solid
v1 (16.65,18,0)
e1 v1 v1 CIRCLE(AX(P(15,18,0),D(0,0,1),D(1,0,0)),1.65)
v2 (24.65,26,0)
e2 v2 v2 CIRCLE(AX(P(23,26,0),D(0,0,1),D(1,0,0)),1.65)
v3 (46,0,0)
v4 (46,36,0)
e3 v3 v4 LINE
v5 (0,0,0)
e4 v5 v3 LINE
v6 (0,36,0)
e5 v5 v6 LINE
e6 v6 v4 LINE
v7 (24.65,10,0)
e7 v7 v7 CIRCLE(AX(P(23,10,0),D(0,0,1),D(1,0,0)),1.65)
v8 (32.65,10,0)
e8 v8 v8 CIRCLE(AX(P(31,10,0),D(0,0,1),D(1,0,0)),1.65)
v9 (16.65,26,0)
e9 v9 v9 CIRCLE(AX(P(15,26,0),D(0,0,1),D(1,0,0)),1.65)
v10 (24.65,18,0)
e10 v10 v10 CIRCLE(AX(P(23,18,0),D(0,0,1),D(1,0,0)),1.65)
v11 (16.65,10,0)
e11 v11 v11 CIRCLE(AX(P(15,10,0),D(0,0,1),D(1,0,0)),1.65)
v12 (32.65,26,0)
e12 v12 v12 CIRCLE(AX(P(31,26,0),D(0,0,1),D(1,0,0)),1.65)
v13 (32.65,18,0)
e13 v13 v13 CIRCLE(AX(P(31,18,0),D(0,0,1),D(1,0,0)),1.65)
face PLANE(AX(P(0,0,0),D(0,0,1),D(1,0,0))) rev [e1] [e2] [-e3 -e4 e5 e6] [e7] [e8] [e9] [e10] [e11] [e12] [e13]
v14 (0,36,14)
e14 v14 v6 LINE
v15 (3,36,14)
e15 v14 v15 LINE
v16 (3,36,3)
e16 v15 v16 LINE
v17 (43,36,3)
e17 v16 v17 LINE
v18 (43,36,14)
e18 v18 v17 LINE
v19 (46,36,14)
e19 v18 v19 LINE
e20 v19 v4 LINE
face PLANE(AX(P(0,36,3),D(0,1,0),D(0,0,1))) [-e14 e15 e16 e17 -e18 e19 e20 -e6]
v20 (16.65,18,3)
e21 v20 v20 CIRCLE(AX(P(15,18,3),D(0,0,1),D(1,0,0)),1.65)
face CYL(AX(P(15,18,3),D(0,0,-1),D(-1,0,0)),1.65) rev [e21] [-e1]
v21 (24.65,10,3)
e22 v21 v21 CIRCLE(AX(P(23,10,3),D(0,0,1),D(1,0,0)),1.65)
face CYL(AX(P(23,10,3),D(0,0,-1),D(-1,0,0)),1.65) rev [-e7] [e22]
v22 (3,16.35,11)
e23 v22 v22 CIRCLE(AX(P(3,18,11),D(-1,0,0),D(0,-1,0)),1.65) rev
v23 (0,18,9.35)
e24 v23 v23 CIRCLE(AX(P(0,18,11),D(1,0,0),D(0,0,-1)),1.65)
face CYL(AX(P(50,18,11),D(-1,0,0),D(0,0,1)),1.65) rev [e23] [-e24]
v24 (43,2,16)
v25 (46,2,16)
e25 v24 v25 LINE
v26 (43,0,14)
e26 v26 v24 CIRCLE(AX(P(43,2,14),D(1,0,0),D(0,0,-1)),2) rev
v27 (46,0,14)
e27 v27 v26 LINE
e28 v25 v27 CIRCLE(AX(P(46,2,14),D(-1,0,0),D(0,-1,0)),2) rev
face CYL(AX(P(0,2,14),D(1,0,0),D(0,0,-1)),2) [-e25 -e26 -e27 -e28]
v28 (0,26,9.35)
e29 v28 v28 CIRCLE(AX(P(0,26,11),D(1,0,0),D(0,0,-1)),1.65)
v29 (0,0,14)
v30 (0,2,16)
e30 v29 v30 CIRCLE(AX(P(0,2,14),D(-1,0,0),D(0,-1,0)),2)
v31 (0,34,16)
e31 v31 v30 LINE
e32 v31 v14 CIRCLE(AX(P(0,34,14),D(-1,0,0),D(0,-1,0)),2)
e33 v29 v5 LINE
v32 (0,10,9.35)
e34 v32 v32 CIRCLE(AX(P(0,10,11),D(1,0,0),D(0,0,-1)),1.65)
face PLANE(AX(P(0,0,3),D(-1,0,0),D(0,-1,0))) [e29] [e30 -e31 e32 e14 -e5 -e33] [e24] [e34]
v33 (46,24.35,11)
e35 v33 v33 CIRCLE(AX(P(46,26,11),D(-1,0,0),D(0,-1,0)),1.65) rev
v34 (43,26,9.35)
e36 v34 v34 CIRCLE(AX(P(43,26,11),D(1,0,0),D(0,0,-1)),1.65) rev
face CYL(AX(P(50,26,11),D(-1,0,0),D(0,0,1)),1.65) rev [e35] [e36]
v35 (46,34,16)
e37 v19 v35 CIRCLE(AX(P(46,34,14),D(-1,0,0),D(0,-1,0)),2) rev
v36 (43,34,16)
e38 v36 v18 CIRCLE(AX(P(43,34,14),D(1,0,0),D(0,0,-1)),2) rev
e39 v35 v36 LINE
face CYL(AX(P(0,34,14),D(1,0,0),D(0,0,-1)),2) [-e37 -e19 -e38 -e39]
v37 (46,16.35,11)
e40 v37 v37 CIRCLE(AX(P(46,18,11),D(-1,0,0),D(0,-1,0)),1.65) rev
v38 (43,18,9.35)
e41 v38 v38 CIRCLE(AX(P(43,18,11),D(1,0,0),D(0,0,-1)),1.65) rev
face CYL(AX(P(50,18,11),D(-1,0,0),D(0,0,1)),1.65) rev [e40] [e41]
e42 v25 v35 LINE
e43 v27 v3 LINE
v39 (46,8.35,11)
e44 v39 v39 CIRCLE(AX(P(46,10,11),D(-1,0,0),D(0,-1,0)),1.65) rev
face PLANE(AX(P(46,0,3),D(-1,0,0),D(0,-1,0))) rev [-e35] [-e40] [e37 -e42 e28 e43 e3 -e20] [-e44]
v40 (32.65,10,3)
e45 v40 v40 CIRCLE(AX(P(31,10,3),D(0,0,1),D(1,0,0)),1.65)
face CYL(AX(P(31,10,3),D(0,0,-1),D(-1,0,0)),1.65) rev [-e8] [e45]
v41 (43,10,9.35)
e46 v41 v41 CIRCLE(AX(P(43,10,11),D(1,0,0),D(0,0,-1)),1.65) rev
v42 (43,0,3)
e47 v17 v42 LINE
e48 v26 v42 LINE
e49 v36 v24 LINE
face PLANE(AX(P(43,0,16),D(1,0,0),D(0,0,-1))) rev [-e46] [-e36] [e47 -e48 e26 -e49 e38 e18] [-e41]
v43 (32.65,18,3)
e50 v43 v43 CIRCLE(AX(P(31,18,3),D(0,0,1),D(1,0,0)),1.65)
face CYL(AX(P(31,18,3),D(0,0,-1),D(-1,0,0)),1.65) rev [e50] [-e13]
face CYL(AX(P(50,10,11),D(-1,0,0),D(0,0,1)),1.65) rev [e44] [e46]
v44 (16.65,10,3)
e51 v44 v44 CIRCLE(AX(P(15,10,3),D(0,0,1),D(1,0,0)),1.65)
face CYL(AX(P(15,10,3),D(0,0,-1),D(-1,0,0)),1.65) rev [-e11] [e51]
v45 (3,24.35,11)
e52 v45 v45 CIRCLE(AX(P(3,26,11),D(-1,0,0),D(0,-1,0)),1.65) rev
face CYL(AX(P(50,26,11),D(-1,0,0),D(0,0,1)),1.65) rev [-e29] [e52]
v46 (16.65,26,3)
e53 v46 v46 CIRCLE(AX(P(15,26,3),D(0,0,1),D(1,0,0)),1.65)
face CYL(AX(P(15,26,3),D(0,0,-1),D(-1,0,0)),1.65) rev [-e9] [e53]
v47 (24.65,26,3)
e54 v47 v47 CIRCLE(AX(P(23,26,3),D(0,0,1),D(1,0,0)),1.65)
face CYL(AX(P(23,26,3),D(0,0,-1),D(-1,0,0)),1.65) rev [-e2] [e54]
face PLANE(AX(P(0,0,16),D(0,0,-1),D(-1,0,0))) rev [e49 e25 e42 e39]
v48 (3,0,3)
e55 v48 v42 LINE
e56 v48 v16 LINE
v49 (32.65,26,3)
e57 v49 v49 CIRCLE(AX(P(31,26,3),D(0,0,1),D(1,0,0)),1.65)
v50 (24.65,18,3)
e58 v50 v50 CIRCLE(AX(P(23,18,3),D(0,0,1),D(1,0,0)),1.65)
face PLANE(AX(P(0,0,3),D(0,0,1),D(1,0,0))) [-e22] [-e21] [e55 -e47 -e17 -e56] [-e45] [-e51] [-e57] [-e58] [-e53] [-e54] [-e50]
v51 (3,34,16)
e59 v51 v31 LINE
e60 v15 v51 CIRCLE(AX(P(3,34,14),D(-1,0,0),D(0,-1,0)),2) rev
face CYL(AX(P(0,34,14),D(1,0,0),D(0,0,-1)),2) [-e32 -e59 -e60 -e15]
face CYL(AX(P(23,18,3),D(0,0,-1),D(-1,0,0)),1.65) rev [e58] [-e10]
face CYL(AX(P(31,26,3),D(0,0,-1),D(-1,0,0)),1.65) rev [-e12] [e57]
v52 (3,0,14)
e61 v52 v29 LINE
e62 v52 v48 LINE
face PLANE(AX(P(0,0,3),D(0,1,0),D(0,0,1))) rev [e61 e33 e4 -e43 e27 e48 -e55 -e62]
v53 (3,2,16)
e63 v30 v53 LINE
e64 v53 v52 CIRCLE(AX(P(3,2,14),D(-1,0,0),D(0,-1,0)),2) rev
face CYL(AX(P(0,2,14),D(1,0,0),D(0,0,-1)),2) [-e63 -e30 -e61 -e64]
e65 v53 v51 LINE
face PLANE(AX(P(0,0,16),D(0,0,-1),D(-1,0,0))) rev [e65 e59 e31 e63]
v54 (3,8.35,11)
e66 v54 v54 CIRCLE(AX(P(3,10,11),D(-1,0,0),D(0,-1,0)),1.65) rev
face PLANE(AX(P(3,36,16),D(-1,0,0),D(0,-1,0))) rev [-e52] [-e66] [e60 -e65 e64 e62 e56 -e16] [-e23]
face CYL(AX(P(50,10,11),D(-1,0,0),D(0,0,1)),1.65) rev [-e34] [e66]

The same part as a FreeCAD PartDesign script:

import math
import FreeCAD as App
import Part
import Sketcher

V = App.Vector


def edges_at(feature, points):
    """Names of the edges that pass closest to the given points."""
    edges = feature.Shape.Edges
    near = lambda p: min(range(len(edges)), key=lambda i: edges[i].distToShape(Part.Vertex(*p))[0])
    return sorted({f"Edge{near(p) + 1}" for p in points})


def add_polygon(sketch, points):
    """Adds a closed chain of lines whose ends are joined by coincident constraints."""
    first, n = sketch.GeometryCount, len(points)
    for a, b in zip(points, points[1:] + points[:1]):
        sketch.addGeometry(Part.LineSegment(App.Vector(*a, 0), App.Vector(*b, 0)), False)
    for i in range(n):
        sketch.addConstraint(Sketcher.Constraint("Coincident", first + i, 2, first + (i + 1) % n, 1))

doc = App.newDocument("Part")
body = doc.addObject("PartDesign::Body", "Body")

sketch1 = body.newObject("Sketcher::SketchObject", "Sketch")
sketch1.AttachmentSupport = (doc.getObject("XY_Plane"), [""])
sketch1.MapMode = "FlatFace"
add_polygon(sketch1, [(0, 36), (0, 0), (46, 0), (46, 36)])
sketch1.addGeometry(Part.Circle(V(15, 10, 0), V(0, 0, 1), 1.6), False)
sketch1.addGeometry(Part.Circle(V(23, 10, 0), V(0, 0, 1), 1.6), False)
sketch1.addGeometry(Part.Circle(V(31, 10, 0), V(0, 0, 1), 1.6), False)
sketch1.addGeometry(Part.Circle(V(15, 18, 0), V(0, 0, 1), 1.6), False)
sketch1.addGeometry(Part.Circle(V(15, 26, 0), V(0, 0, 1), 1.6), False)
sketch1.addGeometry(Part.Circle(V(23, 18, 0), V(0, 0, 1), 1.6), False)
sketch1.addGeometry(Part.Circle(V(31, 18, 0), V(0, 0, 1), 1.6), False)
sketch1.addGeometry(Part.Circle(V(23, 26, 0), V(0, 0, 1), 1.6), False)
sketch1.addGeometry(Part.Circle(V(31, 26, 0), V(0, 0, 1), 1.6), False)
sketch1.addConstraint([
    Sketcher.Constraint("Vertical", 0),
    Sketcher.Constraint("Horizontal", 1),
    Sketcher.Constraint("Vertical", 2),
    Sketcher.Constraint("Horizontal", 3),
    Sketcher.Constraint("Coincident", 0, 2, -1, 1),
    Sketcher.Constraint("Equal", 4, 5),
    Sketcher.Constraint("Equal", 5, 6),
    Sketcher.Constraint("Equal", 6, 7),
    Sketcher.Constraint("Equal", 7, 8),
    Sketcher.Constraint("Equal", 8, 9),
    Sketcher.Constraint("Equal", 9, 10),
    Sketcher.Constraint("Equal", 10, 11),
    Sketcher.Constraint("Equal", 11, 12),
    Sketcher.Constraint("Horizontal", 4, 3, 5, 3),
    Sketcher.Constraint("Horizontal", 5, 3, 6, 3),
    Sketcher.Constraint("Horizontal", 7, 3, 9, 3),
    Sketcher.Constraint("Horizontal", 9, 3, 10, 3),
    Sketcher.Constraint("Horizontal", 8, 3, 11, 3),
    Sketcher.Constraint("Horizontal", 11, 3, 12, 3),
    Sketcher.Constraint("Vertical", 4, 3, 7, 3),
    Sketcher.Constraint("Vertical", 7, 3, 8, 3),
    Sketcher.Constraint("Vertical", 5, 3, 9, 3),
    Sketcher.Constraint("Vertical", 6, 3, 10, 3),
    Sketcher.Constraint("Vertical", 9, 3, 11, 3),
    Sketcher.Constraint("Vertical", 10, 3, 12, 3),
    Sketcher.Constraint("Diameter", 4, 3.3),
    Sketcher.Constraint("DistanceX", 1, 1, 1, 2, 46.0),
    Sketcher.Constraint("DistanceY", 0, 2, 0, 1, 36.0),
    Sketcher.Constraint("DistanceX", -1, 1, 4, 3, 15.0),
    Sketcher.Constraint("DistanceY", -1, 1, 4, 3, 10.0),
    Sketcher.Constraint("DistanceX", -1, 1, 5, 3, 23.0),
    Sketcher.Constraint("DistanceX", -1, 1, 6, 3, 31.0),
    Sketcher.Constraint("DistanceY", -1, 1, 7, 3, 18.0),
    Sketcher.Constraint("DistanceY", -1, 1, 8, 3, 26.0),
])
pad1 = body.newObject("PartDesign::Pad", "Pad")
pad1.Profile = sketch1
pad1.Length = 3

sketch2 = body.newObject("Sketcher::SketchObject", "Sketch001")
sketch2.AttachmentSupport = (doc.getObject("XY_Plane"), [""])
sketch2.MapMode = "FlatFace"
sketch2.AttachmentOffset = App.Placement(V(0, 0, 3), App.Rotation())
add_polygon(sketch2, [(0, 36), (0, 0), (3, 0), (3, 36)])
add_polygon(sketch2, [(43, 36), (43, 0), (46, 0), (46, 36)])
sketch2.addConstraint([
    Sketcher.Constraint("Vertical", 0),
    Sketcher.Constraint("Horizontal", 1),
    Sketcher.Constraint("Vertical", 2),
    Sketcher.Constraint("Horizontal", 3),
    Sketcher.Constraint("Vertical", 4),
    Sketcher.Constraint("Horizontal", 5),
    Sketcher.Constraint("Vertical", 6),
    Sketcher.Constraint("Horizontal", 7),
    Sketcher.Constraint("Coincident", 0, 2, -1, 1),
    Sketcher.Constraint("PointOnObject", 4, 2, -1),
    Sketcher.Constraint("Horizontal", 3, 2, 6, 2),
    Sketcher.Constraint("Equal", 3, 5),
    Sketcher.Constraint("DistanceX", 1, 1, 1, 2, 3.0),
    Sketcher.Constraint("DistanceY", 0, 2, 0, 1, 36.0),
    Sketcher.Constraint("DistanceX", -1, 1, 4, 2, 43.0),
])
pad2 = body.newObject("PartDesign::Pad", "Pad001")
pad2.Profile = sketch2
pad2.Length = 13

sketch3 = body.newObject("Sketcher::SketchObject", "Sketch002")
sketch3.AttachmentSupport = (doc.getObject("YZ_Plane"), [""])
sketch3.MapMode = "FlatFace"
sketch3.addGeometry([
    Part.ArcOfCircle(Part.Circle(V(26, 11, 0), V(0, 0, 1), 1.6), math.radians(-90), math.radians(0)),
    Part.ArcOfCircle(Part.Circle(V(26, 11, 0), V(0, 0, 1), 1.6), math.radians(0), math.radians(180)),
    Part.ArcOfCircle(Part.Circle(V(26, 11, 0), V(0, 0, 1), 1.6), math.radians(180), math.radians(270)),
    Part.ArcOfCircle(Part.Circle(V(18, 11, 0), V(0, 0, 1), 1.6), math.radians(0), math.radians(180)),
    Part.ArcOfCircle(Part.Circle(V(18, 11, 0), V(0, 0, 1), 1.6), math.radians(180), math.radians(270)),
    Part.ArcOfCircle(Part.Circle(V(18, 11, 0), V(0, 0, 1), 1.6), math.radians(-90), math.radians(0)),
    Part.ArcOfCircle(Part.Circle(V(10, 11, 0), V(0, 0, 1), 1.6), math.radians(0), math.radians(180)),
    Part.ArcOfCircle(Part.Circle(V(10, 11, 0), V(0, 0, 1), 1.6), math.radians(180), math.radians(270)),
    Part.ArcOfCircle(Part.Circle(V(10, 11, 0), V(0, 0, 1), 1.6), math.radians(-90), math.radians(0)),
], False)
sketch3.addConstraint([
    Sketcher.Constraint("Tangent", 0, 2, 1, 1),
    Sketcher.Constraint("Tangent", 1, 2, 2, 1),
    Sketcher.Constraint("Tangent", 2, 2, 0, 1),
    Sketcher.Constraint("Tangent", 3, 2, 4, 1),
    Sketcher.Constraint("Tangent", 4, 2, 5, 1),
    Sketcher.Constraint("Tangent", 5, 2, 3, 1),
    Sketcher.Constraint("Tangent", 6, 2, 7, 1),
    Sketcher.Constraint("Tangent", 7, 2, 8, 1),
    Sketcher.Constraint("Tangent", 8, 2, 6, 1),
    Sketcher.Constraint("Equal", 2, 3),
    Sketcher.Constraint("Equal", 5, 6),
    Sketcher.Constraint("Horizontal", 2, 3, 3, 3),
    Sketcher.Constraint("Horizontal", 5, 3, 6, 3),
    Sketcher.Constraint("Horizontal", 8, 3, 0, 2),
    Sketcher.Constraint("Horizontal", 0, 2, 1, 2),
    Sketcher.Constraint("Horizontal", 1, 2, 3, 2),
    Sketcher.Constraint("Horizontal", 3, 2, 5, 2),
    Sketcher.Constraint("Horizontal", 5, 2, 6, 2),
    Sketcher.Constraint("Horizontal", 6, 2, 8, 2),
    Sketcher.Constraint("Vertical", 1, 3, 2, 2),
    Sketcher.Constraint("Vertical", 5, 3, 4, 2),
    Sketcher.Constraint("Vertical", 8, 3, 7, 2),
    Sketcher.Constraint("Radius", 0, 1.65),
    Sketcher.Constraint("DistanceX", -1, 1, 0, 3, 26.0),
    Sketcher.Constraint("DistanceY", -1, 1, 0, 3, 11.0),
    Sketcher.Constraint("DistanceX", -1, 1, 3, 3, 18.0),
    Sketcher.Constraint("DistanceX", -1, 1, 6, 3, 10.0),
])
pocket1 = body.newObject("PartDesign::Pocket", "Pocket")
pocket1.Profile = sketch3
pocket1.Length = 50
pocket1.Reversed = True
doc.recompute()

fillet = body.newObject("PartDesign::Fillet", "Fillet")
fillet.Base = (pocket1, edges_at(pocket1, [
    (1.5, 36, 16),
    (1.5, 0, 16),
    (44.5, 0, 16),
    (44.5, 36, 16),
]))
fillet.Radius = 2

doc.recompute()
